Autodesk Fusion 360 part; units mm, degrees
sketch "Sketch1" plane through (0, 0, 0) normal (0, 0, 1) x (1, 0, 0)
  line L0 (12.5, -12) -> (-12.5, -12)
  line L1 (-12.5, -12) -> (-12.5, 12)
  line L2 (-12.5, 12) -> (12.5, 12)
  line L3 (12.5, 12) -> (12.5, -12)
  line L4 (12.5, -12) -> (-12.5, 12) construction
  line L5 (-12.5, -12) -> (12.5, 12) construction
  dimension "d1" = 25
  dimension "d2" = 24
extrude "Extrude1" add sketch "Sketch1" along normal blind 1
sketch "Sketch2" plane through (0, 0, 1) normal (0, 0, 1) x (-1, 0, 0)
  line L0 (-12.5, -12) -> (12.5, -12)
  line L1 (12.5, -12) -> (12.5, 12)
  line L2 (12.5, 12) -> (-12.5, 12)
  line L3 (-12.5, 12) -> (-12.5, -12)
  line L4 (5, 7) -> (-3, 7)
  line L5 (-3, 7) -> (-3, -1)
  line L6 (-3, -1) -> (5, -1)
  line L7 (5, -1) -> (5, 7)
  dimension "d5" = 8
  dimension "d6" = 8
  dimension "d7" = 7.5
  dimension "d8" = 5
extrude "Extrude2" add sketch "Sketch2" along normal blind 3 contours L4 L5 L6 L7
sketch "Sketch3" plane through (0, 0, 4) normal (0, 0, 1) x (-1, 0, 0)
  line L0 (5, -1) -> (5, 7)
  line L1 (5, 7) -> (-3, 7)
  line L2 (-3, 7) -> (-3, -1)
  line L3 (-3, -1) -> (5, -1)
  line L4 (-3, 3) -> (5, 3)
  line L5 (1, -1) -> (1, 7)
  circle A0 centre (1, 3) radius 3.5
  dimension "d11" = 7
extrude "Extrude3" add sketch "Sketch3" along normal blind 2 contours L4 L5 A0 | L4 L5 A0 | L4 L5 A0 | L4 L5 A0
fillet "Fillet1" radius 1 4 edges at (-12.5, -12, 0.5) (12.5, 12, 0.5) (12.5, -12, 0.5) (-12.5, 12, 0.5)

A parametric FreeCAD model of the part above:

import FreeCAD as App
import Part
import Sketcher
from FreeCAD import Vector
Q = App.Units.Quantity


def edges_at(feature, points):
    """Names of the edges that pass closest to the given points."""
    edges = feature.Shape.Edges
    near = lambda p: min(range(len(edges)), key=lambda i: edges[i].distToShape(Part.Vertex(*p))[0])
    return sorted({f"Edge{near(p) + 1}" for p in points})


def add_polygon(sketch, points):
    """Adds a closed chain of lines whose ends are joined by coincident constraints."""
    first, n = sketch.GeometryCount, len(points)
    for a, b in zip(points, points[1:] + points[:1]):
        sketch.addGeometry(Part.LineSegment(App.Vector(*a, 0), App.Vector(*b, 0)), False)
    for i in range(n):
        sketch.addConstraint(Sketcher.Constraint("Coincident", first + i, 2, first + (i + 1) % n, 1))

doc = App.newDocument("Part")
body = doc.addObject("PartDesign::Body", "Body")

# Sketch on XY plane
sketch1 = doc.addObject("Sketcher::SketchObject", "Sketch")
body.addObject(sketch1)
sketch1.AttachmentSupport = (doc.XY_Plane, [""])
sketch1.MapMode = "FlatFace"
add_polygon(sketch1, [(-12.5, -12), (12.5, -12), (12.5, 12), (-12.5, 12)])  # lines 0-3
sketch1.addConstraint([
    Sketcher.Constraint("Horizontal", 0),
    Sketcher.Constraint("Vertical", 1),
    Sketcher.Constraint("Horizontal", 2),
    Sketcher.Constraint("Vertical", 3),
    Sketcher.Constraint("Symmetric", 0, 2, 2, 2, -1, 1),
    Sketcher.Constraint("DistanceX", 0, 1, 0, 2, Q("25 mm")),
    Sketcher.Constraint("DistanceY", 1, 1, 1, 2, Q("24 mm")),
])
pad1 = doc.addObject("PartDesign::Pad", "Pad")
body.addObject(pad1)
pad1.Profile = sketch1
pad1.Length = 1

# Sketch on XY plane
sketch2 = doc.addObject("Sketcher::SketchObject", "Sketch001")
body.addObject(sketch2)
sketch2.AttachmentSupport = (doc.XY_Plane, [""])
sketch2.MapMode = "FlatFace"
sketch2.AttachmentOffset = App.Placement(Vector(0, 0, 1), App.Rotation())
add_polygon(sketch2, [(-5, 1), (-5, -7), (3, -7), (3, 1)])  # lines 0-3
sketch2.addConstraint([
    Sketcher.Constraint("Vertical", 0),
    Sketcher.Constraint("Horizontal", 1),
    Sketcher.Constraint("Vertical", 2),
    Sketcher.Constraint("Horizontal", 3),
    Sketcher.Constraint("Equal", 3, 0),
    Sketcher.Constraint("DistanceX", 1, 1, 1, 2, Q("8 mm")),
    Sketcher.Constraint("DistanceX", 0, 2, -1, 1, Q("5 mm")),
    Sketcher.Constraint("DistanceY", 0, 2, -1, 1, Q("7 mm")),
])
pad2 = doc.addObject("PartDesign::Pad", "Pad001")
body.addObject(pad2)
pad2.Profile = sketch2
pad2.Length = 3

# Sketch on XY plane
sketch3 = doc.addObject("Sketcher::SketchObject", "Sketch002")
body.addObject(sketch3)
sketch3.AttachmentSupport = (doc.XY_Plane, [""])
sketch3.MapMode = "FlatFace"
sketch3.AttachmentOffset = App.Placement(Vector(0, 0, 4), App.Rotation())
sketch3.addGeometry(Part.Circle(Vector(-1, -3, 0), Vector(0, 0, 1), 3.5), False)
sketch3.addConstraint([
    Sketcher.Constraint("Diameter", 0, Q("7 mm")),
    Sketcher.Constraint("DistanceX", 0, 3, -1, 1, Q("1 mm")),
    Sketcher.Constraint("DistanceY", 0, 3, -1, 1, Q("3 mm")),
])
pad3 = doc.addObject("PartDesign::Pad", "Pad002")
body.addObject(pad3)
pad3.Profile = sketch3
pad3.Length = 2
doc.recompute()

fillet = doc.addObject("PartDesign::Fillet", "Fillet")
body.addObject(fillet)
fillet.Base = (pad3, edges_at(pad3, [
    (-12.5, -12, 0.5),
    (12.5, 12, 0.5),
    (12.5, -12, 0.5),
    (-12.5, 12, 0.5),
]))
fillet.Radius = 1

doc.recompute()
